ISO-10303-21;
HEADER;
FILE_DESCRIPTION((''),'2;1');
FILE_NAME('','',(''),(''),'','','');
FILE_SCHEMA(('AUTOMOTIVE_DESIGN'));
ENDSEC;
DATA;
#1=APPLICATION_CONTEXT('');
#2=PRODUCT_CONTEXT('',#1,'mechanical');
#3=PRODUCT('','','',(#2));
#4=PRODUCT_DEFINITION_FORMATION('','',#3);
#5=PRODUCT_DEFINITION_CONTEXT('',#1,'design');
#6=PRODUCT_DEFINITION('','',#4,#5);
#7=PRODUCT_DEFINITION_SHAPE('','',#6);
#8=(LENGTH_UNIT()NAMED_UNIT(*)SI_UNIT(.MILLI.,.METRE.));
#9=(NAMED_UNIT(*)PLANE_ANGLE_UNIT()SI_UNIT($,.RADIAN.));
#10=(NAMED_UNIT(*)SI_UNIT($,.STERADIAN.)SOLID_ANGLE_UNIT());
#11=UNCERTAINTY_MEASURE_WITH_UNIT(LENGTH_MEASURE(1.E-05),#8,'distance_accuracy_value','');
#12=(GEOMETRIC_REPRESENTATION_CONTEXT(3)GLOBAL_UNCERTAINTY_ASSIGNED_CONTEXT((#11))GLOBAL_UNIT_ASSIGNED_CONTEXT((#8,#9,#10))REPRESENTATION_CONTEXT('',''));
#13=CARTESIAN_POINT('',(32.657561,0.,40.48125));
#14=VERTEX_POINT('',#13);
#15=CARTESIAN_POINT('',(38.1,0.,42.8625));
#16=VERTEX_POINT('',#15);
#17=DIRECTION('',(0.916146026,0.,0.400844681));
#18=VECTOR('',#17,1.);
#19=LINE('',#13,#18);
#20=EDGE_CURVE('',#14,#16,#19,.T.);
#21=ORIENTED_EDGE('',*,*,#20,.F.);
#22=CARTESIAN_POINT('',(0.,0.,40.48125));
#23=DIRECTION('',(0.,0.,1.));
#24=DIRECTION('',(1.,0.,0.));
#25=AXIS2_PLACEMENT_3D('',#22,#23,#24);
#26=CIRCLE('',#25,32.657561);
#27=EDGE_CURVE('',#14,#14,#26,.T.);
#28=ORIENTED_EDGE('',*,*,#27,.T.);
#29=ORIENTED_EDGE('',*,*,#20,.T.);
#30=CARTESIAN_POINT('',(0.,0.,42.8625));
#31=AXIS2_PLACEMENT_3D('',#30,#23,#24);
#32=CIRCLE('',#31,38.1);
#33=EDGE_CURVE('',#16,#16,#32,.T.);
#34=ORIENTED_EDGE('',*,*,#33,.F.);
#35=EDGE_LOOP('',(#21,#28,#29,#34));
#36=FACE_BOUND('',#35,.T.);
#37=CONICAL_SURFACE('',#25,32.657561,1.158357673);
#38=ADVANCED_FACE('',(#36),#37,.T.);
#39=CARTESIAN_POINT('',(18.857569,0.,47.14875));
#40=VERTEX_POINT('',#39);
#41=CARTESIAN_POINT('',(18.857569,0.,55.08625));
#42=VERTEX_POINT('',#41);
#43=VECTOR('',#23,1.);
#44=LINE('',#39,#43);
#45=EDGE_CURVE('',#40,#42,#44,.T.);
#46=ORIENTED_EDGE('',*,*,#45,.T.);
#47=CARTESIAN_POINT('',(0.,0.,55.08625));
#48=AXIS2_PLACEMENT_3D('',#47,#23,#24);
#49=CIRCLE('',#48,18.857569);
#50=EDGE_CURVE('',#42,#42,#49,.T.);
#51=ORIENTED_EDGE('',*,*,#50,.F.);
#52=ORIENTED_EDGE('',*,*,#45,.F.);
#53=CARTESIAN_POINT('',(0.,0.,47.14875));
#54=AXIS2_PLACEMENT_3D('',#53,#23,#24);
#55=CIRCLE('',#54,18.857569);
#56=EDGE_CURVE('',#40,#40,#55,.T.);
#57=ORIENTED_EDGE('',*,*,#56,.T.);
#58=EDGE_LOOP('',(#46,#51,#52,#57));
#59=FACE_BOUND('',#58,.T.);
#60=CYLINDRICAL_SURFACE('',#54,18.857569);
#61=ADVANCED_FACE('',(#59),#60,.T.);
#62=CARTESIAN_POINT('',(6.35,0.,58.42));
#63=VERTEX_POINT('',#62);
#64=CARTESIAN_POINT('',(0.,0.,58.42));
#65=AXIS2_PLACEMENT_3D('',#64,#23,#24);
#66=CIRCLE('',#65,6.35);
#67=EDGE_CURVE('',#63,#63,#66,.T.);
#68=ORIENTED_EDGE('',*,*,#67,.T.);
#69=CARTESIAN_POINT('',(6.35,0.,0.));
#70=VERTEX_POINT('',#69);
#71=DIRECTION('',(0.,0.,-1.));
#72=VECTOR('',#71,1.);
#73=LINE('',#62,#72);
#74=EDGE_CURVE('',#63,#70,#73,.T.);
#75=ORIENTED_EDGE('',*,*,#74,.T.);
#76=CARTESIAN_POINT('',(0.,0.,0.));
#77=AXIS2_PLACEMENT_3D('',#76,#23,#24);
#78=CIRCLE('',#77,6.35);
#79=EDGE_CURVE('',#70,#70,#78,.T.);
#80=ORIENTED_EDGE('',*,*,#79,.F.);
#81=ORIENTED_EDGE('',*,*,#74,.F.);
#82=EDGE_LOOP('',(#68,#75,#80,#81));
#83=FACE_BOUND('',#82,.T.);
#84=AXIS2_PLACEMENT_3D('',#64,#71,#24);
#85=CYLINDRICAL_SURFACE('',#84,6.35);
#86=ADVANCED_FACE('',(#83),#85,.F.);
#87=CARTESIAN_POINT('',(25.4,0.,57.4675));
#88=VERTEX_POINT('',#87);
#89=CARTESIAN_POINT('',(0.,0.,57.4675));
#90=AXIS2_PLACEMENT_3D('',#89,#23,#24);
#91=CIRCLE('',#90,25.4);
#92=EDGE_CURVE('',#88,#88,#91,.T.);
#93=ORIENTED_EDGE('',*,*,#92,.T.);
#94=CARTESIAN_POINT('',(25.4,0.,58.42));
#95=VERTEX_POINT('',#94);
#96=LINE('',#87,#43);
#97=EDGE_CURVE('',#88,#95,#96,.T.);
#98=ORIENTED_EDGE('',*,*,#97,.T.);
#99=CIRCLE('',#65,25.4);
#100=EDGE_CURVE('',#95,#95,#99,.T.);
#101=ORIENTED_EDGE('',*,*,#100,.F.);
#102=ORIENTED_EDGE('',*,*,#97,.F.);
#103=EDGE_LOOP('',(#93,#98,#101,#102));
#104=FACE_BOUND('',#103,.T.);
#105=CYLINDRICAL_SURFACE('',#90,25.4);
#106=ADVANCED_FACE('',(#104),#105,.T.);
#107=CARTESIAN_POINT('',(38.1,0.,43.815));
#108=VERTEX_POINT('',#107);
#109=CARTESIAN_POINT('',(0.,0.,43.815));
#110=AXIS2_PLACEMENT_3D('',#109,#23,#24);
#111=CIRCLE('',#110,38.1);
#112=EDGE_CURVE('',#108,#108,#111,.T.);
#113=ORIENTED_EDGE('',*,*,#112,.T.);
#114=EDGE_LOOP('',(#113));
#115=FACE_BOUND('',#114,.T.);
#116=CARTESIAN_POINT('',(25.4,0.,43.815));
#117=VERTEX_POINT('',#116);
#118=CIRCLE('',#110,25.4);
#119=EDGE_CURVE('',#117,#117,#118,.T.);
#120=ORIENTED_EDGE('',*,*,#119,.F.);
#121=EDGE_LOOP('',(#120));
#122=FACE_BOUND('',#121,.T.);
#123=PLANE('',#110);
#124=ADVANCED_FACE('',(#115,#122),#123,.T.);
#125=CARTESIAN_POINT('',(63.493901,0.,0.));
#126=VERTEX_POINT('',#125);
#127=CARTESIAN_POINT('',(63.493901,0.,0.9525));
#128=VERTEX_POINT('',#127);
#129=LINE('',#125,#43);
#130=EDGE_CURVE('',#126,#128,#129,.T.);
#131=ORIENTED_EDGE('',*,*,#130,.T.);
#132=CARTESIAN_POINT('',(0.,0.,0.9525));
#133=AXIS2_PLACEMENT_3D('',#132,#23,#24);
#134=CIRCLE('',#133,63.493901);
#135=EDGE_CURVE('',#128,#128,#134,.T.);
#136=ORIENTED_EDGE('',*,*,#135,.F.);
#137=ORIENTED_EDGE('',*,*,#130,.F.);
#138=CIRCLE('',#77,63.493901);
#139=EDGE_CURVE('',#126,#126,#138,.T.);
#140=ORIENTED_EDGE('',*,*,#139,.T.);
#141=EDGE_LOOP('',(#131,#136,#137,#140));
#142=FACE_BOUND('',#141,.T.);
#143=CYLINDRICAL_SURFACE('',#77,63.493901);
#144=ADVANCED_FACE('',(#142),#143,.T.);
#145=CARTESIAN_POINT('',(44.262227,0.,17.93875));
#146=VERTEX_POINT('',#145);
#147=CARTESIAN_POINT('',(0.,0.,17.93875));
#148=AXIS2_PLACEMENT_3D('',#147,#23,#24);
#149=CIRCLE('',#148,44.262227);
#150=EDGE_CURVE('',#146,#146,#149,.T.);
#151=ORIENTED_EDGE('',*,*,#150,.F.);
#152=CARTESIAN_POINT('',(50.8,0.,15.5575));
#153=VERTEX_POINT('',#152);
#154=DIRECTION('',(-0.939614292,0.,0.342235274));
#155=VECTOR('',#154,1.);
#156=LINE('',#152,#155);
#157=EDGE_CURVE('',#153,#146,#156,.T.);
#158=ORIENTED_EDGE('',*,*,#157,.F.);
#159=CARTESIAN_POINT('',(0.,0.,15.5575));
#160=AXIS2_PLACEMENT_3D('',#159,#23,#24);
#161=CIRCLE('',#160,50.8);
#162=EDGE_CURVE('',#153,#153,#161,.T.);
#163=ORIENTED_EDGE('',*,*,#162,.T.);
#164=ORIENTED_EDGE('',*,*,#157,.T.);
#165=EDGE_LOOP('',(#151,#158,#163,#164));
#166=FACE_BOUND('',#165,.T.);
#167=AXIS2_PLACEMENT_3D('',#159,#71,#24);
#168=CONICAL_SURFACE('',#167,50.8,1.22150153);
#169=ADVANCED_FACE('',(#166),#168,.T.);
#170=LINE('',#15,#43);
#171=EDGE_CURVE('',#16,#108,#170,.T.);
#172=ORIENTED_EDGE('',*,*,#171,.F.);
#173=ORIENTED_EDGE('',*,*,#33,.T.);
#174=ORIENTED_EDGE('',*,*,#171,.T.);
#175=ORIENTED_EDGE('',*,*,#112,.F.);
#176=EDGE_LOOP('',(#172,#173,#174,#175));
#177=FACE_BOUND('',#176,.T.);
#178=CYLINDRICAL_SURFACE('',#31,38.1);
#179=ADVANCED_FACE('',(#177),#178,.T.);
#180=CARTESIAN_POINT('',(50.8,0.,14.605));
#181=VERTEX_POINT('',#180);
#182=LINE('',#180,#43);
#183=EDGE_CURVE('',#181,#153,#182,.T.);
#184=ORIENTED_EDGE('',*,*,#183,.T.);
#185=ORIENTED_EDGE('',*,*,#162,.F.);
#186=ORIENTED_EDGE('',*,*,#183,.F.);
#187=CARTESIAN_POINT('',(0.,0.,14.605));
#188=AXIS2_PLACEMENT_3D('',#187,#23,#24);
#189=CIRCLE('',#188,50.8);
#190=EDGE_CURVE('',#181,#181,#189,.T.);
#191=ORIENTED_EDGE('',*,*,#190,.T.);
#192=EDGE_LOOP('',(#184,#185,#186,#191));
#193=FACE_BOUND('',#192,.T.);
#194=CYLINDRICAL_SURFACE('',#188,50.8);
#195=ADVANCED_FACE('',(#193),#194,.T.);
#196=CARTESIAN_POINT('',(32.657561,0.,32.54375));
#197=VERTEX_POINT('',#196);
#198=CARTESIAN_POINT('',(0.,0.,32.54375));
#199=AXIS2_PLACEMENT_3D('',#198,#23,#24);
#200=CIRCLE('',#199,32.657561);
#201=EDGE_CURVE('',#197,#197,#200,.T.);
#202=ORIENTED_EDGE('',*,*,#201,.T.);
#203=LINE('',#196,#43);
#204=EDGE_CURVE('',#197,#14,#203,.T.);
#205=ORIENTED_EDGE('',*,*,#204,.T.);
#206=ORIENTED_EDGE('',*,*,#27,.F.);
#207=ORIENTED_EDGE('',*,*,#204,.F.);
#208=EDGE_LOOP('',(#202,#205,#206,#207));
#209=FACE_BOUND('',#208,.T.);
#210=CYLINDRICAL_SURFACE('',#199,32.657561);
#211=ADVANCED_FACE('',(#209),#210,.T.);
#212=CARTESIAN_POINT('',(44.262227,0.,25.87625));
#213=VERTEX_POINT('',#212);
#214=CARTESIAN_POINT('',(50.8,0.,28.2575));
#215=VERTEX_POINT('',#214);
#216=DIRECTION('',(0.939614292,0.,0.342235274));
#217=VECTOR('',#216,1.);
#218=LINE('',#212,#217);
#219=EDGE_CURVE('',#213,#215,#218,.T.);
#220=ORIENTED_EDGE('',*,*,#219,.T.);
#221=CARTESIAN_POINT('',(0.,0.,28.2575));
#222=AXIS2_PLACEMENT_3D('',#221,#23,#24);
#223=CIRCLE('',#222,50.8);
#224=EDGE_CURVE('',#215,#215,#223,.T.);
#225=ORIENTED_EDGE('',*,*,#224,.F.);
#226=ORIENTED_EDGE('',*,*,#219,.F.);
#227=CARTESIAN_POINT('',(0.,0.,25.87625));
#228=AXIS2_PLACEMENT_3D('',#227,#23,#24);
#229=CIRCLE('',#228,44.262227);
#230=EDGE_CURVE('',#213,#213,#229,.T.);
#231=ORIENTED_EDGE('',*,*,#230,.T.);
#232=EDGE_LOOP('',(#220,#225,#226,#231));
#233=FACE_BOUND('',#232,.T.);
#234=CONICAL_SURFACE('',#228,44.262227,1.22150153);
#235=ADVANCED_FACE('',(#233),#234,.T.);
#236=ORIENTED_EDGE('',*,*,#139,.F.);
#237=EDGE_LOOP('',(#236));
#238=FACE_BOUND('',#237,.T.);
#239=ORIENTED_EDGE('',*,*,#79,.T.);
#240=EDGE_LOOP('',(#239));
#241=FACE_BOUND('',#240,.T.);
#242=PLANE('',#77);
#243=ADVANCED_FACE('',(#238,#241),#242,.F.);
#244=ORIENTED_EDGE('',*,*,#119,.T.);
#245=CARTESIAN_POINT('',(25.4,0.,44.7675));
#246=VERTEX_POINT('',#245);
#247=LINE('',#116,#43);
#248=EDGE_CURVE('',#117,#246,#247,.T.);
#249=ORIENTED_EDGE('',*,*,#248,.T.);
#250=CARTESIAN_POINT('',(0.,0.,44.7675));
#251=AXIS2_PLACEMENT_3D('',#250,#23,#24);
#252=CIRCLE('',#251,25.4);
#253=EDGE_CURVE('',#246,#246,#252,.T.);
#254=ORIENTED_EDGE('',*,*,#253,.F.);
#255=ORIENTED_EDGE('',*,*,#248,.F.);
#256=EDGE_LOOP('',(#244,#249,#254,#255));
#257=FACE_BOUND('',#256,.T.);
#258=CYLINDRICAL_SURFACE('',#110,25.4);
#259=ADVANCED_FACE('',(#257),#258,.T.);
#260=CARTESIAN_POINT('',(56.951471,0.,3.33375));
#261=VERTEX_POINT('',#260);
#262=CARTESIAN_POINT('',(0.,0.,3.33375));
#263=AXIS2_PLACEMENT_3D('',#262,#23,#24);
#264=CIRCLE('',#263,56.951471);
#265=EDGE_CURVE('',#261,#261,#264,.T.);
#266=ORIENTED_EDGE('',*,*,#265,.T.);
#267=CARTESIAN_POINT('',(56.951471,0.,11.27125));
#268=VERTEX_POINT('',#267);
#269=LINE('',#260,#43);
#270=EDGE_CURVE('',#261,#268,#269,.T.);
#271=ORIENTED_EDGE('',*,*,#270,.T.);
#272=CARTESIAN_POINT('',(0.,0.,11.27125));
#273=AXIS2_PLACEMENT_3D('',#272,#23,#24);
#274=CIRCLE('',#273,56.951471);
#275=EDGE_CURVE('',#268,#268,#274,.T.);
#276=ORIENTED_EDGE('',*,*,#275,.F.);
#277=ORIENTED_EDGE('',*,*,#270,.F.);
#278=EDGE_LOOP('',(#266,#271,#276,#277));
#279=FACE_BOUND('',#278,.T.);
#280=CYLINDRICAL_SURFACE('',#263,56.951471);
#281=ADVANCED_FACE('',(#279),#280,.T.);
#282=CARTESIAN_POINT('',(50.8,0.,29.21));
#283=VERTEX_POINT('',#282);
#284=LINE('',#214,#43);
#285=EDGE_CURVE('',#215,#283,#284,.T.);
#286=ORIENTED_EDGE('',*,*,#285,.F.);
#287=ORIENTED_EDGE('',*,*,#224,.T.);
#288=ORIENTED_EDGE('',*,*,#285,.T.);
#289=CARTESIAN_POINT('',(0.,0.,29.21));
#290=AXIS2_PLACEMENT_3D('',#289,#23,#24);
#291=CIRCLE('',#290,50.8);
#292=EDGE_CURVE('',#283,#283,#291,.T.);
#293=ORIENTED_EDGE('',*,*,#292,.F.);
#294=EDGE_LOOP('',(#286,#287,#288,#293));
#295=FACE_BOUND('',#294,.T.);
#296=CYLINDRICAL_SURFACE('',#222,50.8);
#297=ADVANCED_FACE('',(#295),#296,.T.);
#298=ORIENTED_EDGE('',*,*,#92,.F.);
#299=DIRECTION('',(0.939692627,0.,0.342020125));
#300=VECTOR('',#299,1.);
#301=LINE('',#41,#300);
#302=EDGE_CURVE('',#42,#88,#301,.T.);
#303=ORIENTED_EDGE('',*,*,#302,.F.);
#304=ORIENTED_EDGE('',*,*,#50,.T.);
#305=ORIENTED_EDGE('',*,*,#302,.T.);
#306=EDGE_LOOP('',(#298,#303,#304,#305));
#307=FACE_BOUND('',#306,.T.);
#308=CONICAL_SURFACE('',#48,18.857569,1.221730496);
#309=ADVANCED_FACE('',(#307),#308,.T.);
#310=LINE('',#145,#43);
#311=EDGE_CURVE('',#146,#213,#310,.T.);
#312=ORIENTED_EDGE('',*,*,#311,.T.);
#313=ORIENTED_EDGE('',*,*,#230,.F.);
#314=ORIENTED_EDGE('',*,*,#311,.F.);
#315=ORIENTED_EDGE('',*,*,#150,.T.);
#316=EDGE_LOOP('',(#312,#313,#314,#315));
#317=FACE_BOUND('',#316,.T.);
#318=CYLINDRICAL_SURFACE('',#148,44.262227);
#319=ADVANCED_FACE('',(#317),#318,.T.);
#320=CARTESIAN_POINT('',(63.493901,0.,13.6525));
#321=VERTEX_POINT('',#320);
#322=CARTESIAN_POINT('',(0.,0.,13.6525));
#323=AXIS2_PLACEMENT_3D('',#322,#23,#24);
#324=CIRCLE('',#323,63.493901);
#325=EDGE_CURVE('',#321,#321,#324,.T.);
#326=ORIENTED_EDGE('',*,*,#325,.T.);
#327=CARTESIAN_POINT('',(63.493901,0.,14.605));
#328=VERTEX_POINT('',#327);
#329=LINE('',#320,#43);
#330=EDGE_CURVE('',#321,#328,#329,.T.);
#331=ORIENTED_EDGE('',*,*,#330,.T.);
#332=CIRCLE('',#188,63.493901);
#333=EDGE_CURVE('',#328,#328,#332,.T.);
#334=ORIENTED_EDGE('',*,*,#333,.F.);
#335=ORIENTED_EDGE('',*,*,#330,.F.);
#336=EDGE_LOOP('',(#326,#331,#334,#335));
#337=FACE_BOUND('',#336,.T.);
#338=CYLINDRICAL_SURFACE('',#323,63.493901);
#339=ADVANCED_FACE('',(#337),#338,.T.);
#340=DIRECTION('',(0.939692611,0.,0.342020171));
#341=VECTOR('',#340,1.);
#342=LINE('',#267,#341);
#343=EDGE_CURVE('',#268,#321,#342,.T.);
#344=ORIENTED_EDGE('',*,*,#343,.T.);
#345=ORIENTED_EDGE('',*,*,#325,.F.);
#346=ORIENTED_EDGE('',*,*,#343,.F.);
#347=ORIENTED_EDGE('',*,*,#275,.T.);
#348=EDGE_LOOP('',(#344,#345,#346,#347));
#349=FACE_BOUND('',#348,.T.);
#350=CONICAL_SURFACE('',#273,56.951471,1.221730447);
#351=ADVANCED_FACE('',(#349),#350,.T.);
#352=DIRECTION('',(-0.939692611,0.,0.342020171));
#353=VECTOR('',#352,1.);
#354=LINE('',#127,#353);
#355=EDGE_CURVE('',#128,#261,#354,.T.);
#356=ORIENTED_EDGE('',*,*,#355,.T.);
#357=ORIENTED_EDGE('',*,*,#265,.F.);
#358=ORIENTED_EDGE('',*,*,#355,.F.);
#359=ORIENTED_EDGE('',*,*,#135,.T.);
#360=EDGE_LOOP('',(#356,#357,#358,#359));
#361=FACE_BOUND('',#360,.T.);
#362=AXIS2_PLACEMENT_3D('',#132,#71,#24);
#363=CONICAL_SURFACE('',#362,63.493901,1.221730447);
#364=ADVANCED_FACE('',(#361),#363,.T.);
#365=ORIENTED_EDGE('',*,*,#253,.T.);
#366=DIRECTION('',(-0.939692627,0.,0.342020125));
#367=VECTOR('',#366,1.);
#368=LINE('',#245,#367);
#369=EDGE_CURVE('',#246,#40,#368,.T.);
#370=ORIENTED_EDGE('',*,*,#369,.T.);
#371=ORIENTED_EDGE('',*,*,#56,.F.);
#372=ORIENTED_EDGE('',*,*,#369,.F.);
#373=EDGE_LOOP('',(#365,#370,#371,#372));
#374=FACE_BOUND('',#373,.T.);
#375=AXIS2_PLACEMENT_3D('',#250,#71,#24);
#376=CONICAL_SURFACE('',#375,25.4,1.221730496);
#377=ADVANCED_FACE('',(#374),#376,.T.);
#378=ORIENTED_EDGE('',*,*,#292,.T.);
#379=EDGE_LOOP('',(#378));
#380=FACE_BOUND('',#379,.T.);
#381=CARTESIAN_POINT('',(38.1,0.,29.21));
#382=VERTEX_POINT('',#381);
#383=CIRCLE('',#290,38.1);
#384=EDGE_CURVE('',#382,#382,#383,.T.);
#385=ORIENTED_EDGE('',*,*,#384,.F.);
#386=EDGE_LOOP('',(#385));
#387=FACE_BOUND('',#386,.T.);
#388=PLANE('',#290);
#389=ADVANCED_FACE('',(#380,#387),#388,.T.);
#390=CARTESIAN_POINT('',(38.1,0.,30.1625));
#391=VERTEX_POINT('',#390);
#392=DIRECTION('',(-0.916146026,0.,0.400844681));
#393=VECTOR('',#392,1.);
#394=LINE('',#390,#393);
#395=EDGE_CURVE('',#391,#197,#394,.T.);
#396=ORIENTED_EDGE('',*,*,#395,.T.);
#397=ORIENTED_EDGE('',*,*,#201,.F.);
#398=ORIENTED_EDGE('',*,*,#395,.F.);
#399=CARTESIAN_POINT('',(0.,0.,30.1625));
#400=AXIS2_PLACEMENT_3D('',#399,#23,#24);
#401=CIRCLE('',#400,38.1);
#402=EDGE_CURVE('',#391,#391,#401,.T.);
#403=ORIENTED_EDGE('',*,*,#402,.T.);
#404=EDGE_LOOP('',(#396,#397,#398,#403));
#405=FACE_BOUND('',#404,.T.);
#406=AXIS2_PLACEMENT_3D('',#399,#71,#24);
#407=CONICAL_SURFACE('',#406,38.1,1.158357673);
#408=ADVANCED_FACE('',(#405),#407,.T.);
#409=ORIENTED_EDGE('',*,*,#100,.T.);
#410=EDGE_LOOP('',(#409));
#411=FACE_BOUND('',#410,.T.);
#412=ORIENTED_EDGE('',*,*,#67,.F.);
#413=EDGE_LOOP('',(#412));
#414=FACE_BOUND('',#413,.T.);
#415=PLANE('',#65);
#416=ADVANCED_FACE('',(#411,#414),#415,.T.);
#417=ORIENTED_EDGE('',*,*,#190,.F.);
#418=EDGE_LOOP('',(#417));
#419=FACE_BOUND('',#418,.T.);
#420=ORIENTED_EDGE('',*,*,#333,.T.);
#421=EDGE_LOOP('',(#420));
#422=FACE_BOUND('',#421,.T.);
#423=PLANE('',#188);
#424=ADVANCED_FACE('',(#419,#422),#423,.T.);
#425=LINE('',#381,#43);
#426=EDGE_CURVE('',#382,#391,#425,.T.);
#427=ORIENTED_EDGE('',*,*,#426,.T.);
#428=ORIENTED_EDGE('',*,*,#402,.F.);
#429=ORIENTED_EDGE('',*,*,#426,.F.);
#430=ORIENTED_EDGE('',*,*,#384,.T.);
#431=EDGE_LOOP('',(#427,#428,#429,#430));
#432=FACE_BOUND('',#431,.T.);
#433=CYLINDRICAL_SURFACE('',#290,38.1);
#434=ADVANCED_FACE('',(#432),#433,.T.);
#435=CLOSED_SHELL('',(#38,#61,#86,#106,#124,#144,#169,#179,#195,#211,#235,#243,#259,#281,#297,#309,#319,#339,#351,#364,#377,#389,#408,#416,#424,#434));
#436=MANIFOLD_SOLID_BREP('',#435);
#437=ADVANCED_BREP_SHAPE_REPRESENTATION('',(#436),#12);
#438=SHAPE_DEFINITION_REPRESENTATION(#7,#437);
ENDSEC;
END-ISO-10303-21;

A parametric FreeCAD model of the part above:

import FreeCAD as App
import Part
import Sketcher
from FreeCAD import Vector
Q = App.Units.Quantity


def add_polygon(sketch, points):
    """Adds a closed chain of lines whose ends are joined by coincident constraints."""
    first, n = sketch.GeometryCount, len(points)
    for a, b in zip(points, points[1:] + points[:1]):
        sketch.addGeometry(Part.LineSegment(App.Vector(*a, 0), App.Vector(*b, 0)), False)
    for i in range(n):
        sketch.addConstraint(Sketcher.Constraint("Coincident", first + i, 2, first + (i + 1) % n, 1))

doc = App.newDocument("Part")
body = doc.addObject("PartDesign::Body", "Body")

# Sketch on XZ plane
sketch1 = body.newObject("Sketcher::SketchObject", "Sketch")
sketch1.AttachmentSupport = (doc.getObject("XZ_Plane"), [""])
sketch1.MapMode = "FlatFace"
add_polygon(sketch1, [(25.4, 58.4), (6.3, 58.4), (6.3, 0), (63.5, 0), (63.5, 1), (57, 3.3), (57, 11.3), (63.5, 13.7), (63.5, 14.6), (50.8, 14.6), (50.8, 15.6), (44.3, 17.9), (44.3, 25.9), (50.8, 28.3), (50.8, 29.2), (38.1, 29.2), (38.1, 30.2), (32.7, 32.5), (32.7, 40.5), (38.1, 42.9), (38.1, 43.8), (25.4, 43.8), (25.4, 44.8), (18.9, 47.1), (18.9, 55.1), (25.4, 57.5)])  # lines 0-25
sketch1.addConstraint([
    Sketcher.Constraint("Horizontal", 0),
    Sketcher.Constraint("Vertical", 1),
    Sketcher.Constraint("Horizontal", 2),
    Sketcher.Constraint("Vertical", 3),
    Sketcher.Constraint("Vertical", 5),
    Sketcher.Constraint("Vertical", 7),
    Sketcher.Constraint("Horizontal", 8),
    Sketcher.Constraint("Vertical", 9),
    Sketcher.Constraint("Vertical", 11),
    Sketcher.Constraint("Vertical", 13),
    Sketcher.Constraint("Horizontal", 14),
    Sketcher.Constraint("Vertical", 15),
    Sketcher.Constraint("Vertical", 17),
    Sketcher.Constraint("Vertical", 19),
    Sketcher.Constraint("Horizontal", 20),
    Sketcher.Constraint("Vertical", 21),
    Sketcher.Constraint("Vertical", 23),
    Sketcher.Constraint("Vertical", 25),
    Sketcher.Constraint("PointOnObject", 1, 2, -1),
    Sketcher.Constraint("Parallel", 4, 22),
    Sketcher.Constraint("Parallel", 6, 24),
    Sketcher.Constraint("Vertical", 3, 2, 6, 2),
    Sketcher.Constraint("Vertical", 9, 2, 12, 2),
    Sketcher.Constraint("Vertical", 15, 2, 18, 2),
    Sketcher.Constraint("Vertical", 21, 2, 24, 2),
    Sketcher.Constraint("Equal", 14, 20),
    Sketcher.Constraint("Equal", 3, 7),
    Sketcher.Constraint("Equal", 7, 9),
    Sketcher.Constraint("Equal", 5, 11),
    Sketcher.Constraint("Equal", 9, 13),
    Sketcher.Constraint("Equal", 13, 15),
    Sketcher.Constraint("Equal", 11, 17),
    Sketcher.Constraint("Equal", 15, 19),
    Sketcher.Constraint("Equal", 19, 21),
    Sketcher.Constraint("Equal", 17, 23),
    Sketcher.Constraint("Equal", 21, 25),
    Sketcher.Constraint("Equal", 4, 6),
    Sketcher.Constraint("Equal", 10, 12),
    Sketcher.Constraint("Equal", 16, 18),
    Sketcher.Constraint("Equal", 6, 22),
    Sketcher.Constraint("DistanceX", 14, 2, 14, 1, Q("0.5 in")),
    Sketcher.Constraint("DistanceY", 1, 2, 1, 1, Q("2.3 in")),
    Sketcher.Constraint("DistanceX", -1, 1, 8, 2, Q("2 in")),
    Sketcher.Constraint("Angle", 4, Q("159.999998 deg")),
    Sketcher.Constraint("DistanceX", 0, 2, 0, 1, Q("0.75 in")),
    Sketcher.Constraint("DistanceY", 3, 2, 6, 2, Q("0.5 in")),
    Sketcher.Constraint("DistanceY", 9, 2, 12, 2, Q("0.5 in")),
    Sketcher.Constraint("DistanceY", 15, 2, 18, 2, Q("0.5 in")),
    Sketcher.Constraint("DistanceY", 5, 1, 5, 2, Q("0.3125 in")),
    Sketcher.Constraint("DistanceX", 2, 1, 2, 2, 57.143901),
    Sketcher.Constraint("Distance", 16, 5.94058),
    Sketcher.Constraint("Distance", 10, 6.957933),
])
revolution = body.newObject("PartDesign::Revolution", "Revolution")
revolution.Profile = sketch1
revolution.ReferenceAxis = (sketch1, ["V_Axis"])
revolution.Angle = 360

doc.recompute()
